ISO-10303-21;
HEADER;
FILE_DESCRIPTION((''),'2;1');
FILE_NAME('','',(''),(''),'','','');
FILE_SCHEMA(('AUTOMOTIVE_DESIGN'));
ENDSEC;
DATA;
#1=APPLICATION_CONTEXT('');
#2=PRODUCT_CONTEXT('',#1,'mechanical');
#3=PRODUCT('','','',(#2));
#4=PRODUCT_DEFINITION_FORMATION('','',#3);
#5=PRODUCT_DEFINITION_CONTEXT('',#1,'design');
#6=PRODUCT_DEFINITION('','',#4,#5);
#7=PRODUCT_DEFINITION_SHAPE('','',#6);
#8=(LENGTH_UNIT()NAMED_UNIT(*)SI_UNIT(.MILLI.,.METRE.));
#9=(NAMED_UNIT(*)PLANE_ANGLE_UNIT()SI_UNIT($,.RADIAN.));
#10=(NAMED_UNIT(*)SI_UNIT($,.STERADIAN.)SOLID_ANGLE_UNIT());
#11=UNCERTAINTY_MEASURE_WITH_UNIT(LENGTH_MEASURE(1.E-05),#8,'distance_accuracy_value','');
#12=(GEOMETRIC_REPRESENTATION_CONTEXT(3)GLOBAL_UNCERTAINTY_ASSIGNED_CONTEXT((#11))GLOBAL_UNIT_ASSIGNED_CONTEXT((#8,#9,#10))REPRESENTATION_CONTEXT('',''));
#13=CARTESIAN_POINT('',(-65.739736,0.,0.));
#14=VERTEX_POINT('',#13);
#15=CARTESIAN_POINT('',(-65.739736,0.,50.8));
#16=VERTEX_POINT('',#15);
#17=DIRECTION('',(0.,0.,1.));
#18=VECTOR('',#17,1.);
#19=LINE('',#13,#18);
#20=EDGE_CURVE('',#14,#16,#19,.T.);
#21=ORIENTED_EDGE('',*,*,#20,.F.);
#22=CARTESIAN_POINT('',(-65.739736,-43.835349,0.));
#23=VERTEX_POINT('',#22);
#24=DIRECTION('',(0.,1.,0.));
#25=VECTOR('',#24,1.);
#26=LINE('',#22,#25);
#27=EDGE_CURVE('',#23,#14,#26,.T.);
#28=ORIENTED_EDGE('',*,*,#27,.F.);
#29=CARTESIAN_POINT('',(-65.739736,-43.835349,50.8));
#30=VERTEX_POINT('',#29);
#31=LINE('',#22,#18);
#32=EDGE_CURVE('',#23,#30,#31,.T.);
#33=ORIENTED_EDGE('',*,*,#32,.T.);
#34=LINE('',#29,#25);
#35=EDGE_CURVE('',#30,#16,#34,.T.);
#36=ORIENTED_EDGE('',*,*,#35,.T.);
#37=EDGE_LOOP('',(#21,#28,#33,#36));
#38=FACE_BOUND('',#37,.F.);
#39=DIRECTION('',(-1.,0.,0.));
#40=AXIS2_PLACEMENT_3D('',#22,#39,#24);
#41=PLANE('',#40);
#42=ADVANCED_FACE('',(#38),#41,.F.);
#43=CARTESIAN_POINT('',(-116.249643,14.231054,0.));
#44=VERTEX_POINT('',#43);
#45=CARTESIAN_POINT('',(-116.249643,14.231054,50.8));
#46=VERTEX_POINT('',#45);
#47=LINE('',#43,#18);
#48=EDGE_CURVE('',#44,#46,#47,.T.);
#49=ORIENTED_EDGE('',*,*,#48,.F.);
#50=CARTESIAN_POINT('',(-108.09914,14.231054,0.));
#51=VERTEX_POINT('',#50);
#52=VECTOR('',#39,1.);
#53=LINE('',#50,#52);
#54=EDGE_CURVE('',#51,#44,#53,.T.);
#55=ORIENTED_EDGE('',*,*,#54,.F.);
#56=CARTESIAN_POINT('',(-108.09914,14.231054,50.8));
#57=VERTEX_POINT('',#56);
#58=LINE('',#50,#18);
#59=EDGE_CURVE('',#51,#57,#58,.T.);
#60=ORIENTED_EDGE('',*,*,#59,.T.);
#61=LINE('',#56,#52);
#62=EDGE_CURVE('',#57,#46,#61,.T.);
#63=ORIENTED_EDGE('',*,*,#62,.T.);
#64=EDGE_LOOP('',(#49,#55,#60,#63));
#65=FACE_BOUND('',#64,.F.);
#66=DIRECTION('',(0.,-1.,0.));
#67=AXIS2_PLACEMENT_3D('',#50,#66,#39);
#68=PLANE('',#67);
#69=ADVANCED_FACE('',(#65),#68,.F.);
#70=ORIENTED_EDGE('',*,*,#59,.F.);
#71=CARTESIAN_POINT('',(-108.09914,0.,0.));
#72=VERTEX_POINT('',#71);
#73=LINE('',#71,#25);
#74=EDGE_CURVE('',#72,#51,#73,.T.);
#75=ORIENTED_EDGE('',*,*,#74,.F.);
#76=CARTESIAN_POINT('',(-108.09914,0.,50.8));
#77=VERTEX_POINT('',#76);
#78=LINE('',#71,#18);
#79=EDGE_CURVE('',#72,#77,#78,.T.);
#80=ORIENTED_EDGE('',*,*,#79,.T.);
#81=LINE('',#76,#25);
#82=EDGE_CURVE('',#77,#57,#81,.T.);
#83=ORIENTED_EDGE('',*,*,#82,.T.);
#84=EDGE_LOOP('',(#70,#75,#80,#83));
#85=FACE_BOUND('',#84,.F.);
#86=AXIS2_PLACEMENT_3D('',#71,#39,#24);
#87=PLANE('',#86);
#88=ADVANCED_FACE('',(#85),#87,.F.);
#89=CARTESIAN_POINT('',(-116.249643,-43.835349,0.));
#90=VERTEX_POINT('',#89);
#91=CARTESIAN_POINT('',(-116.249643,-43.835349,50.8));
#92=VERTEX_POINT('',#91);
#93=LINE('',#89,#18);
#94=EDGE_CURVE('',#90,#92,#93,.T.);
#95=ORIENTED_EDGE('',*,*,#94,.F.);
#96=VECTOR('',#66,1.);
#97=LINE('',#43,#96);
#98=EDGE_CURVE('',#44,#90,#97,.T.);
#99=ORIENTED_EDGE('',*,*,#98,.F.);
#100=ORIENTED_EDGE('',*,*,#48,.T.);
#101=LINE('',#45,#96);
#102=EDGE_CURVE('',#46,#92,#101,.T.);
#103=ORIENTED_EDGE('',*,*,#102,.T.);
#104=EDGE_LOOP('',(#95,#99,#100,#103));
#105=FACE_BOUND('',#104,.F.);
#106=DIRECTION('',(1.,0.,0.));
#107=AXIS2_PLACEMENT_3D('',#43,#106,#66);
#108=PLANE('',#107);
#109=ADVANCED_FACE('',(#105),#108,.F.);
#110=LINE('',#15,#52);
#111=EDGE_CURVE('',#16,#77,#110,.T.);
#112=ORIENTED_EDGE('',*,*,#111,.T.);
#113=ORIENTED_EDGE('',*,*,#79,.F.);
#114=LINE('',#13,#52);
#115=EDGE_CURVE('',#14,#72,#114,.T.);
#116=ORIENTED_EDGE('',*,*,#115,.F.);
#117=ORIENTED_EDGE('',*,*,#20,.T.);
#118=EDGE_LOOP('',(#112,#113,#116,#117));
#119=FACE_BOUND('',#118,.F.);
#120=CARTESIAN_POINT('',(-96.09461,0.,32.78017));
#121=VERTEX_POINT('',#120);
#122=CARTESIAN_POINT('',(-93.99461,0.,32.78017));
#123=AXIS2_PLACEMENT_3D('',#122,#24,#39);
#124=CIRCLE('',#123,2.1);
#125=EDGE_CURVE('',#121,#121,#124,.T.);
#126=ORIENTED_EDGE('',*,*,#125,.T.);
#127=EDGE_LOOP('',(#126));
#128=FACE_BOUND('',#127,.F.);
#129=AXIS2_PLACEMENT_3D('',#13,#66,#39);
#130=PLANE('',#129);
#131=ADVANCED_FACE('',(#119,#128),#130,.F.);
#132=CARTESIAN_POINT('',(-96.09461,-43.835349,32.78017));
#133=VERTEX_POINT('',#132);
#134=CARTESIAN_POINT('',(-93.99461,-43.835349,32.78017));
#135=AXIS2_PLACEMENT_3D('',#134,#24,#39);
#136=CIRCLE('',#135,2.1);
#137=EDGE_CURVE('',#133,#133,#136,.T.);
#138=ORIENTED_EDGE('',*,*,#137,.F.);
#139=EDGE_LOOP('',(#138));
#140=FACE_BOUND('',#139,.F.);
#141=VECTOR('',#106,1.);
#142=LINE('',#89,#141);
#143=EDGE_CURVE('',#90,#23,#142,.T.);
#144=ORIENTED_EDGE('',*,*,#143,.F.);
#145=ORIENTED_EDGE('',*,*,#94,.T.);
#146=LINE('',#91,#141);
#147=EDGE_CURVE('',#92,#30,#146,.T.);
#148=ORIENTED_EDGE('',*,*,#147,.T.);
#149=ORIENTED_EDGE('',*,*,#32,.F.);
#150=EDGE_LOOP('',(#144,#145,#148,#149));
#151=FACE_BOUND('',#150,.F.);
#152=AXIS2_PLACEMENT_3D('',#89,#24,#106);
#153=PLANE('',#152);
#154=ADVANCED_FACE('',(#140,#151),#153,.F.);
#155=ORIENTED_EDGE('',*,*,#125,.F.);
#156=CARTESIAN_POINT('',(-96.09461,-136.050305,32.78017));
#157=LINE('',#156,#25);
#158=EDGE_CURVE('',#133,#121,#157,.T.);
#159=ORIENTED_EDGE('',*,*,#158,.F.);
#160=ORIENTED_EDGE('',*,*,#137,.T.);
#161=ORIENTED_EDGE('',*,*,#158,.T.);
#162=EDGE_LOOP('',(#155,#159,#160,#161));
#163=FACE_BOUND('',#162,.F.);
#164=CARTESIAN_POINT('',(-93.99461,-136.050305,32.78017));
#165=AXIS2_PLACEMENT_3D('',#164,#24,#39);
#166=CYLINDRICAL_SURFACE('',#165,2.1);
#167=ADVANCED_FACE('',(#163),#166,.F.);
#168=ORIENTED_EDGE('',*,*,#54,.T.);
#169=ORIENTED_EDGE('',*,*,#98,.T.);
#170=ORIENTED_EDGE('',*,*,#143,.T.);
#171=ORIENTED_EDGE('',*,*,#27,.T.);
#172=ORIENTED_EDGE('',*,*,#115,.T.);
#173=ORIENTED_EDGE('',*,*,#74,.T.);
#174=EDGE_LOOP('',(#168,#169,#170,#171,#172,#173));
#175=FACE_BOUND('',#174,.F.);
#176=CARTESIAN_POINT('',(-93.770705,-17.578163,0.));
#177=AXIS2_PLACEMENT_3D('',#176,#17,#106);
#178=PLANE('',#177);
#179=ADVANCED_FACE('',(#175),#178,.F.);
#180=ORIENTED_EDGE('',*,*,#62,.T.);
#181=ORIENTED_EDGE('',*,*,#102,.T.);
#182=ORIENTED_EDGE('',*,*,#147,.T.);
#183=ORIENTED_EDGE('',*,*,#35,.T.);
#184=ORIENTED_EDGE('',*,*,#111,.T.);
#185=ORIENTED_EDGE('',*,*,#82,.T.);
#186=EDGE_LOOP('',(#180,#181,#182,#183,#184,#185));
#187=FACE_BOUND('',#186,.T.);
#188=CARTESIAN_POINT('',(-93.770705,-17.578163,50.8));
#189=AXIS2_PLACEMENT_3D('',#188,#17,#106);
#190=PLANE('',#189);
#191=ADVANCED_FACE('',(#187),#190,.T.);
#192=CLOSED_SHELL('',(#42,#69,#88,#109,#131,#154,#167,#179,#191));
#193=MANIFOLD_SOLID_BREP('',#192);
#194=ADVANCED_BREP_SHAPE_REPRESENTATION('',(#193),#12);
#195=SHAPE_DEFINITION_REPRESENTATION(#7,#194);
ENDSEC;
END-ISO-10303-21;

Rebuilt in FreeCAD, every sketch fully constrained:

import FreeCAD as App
import Part
import Sketcher


def add_polygon(sketch, points):
    """Adds a closed chain of lines whose ends are joined by coincident constraints."""
    first, n = sketch.GeometryCount, len(points)
    for a, b in zip(points, points[1:] + points[:1]):
        sketch.addGeometry(Part.LineSegment(App.Vector(*a, 0), App.Vector(*b, 0)), False)
    for i in range(n):
        sketch.addConstraint(Sketcher.Constraint("Coincident", first + i, 2, first + (i + 1) % n, 1))

doc = App.newDocument("Part")
body = doc.addObject("PartDesign::Body", "Body")

sketch1 = body.newObject("Sketcher::SketchObject", "Sketch")
sketch1.AttachmentSupport = (doc.getObject("XY_Plane"), [""])
sketch1.MapMode = "FlatFace"
add_polygon(sketch1, [(-108.09914, 14.231054), (-116.249643, 14.231054), (-116.249643, -43.835349), (-65.739736, -43.835349), (-65.739736, 0), (-108.09914, 0)])
sketch1.addConstraint([
    Sketcher.Constraint("Horizontal", 0),
    Sketcher.Constraint("Vertical", 1),
    Sketcher.Constraint("Horizontal", 2),
    Sketcher.Constraint("Vertical", 3),
    Sketcher.Constraint("Horizontal", 4),
    Sketcher.Constraint("Vertical", 5),
    Sketcher.Constraint("PointOnObject", 3, 2, -1),
    Sketcher.Constraint("DistanceY", 3, 1, 3, 2, 43.835349),
    Sketcher.Constraint("DistanceX", 0, 2, 0, 1, 8.150503),
    Sketcher.Constraint("DistanceX", 2, 1, 2, 2, 50.509907),
    Sketcher.Constraint("DistanceY", 1, 2, 1, 1, 58.066403),
    Sketcher.Constraint("DistanceX", 4, 2, -1, 1, 108.09914),
])
pad1 = body.newObject("PartDesign::Pad", "Pad")
pad1.Profile = sketch1
pad1.Length = 50.8

sketch2 = body.newObject("Sketcher::SketchObject", "Sketch001")
sketch2.AttachmentSupport = (doc.getObject("XZ_Plane"), [""])
sketch2.MapMode = "FlatFace"
sketch2.AttachmentOffset = App.Placement(App.Vector(0, 0, 43.835349), App.Rotation())
sketch2.addGeometry(Part.Circle(App.Vector(-93.99461, 32.78017, 0), App.Vector(0, 0, 1), 2.1), False)
sketch2.addConstraint([
    Sketcher.Constraint("Diameter", 0, 4.2),
    Sketcher.Constraint("DistanceX", 0, 3, -1, 1, 93.99461),
    Sketcher.Constraint("DistanceY", -1, 1, 0, 3, 32.78017),
])
doc.recompute()
hole = body.newObject("PartDesign::Hole", "Hole")
hole.Profile = sketch2
hole.ThreadType = "None"
hole.Diameter = 4.2
hole.DepthType = "ThroughAll"

doc.recompute()
